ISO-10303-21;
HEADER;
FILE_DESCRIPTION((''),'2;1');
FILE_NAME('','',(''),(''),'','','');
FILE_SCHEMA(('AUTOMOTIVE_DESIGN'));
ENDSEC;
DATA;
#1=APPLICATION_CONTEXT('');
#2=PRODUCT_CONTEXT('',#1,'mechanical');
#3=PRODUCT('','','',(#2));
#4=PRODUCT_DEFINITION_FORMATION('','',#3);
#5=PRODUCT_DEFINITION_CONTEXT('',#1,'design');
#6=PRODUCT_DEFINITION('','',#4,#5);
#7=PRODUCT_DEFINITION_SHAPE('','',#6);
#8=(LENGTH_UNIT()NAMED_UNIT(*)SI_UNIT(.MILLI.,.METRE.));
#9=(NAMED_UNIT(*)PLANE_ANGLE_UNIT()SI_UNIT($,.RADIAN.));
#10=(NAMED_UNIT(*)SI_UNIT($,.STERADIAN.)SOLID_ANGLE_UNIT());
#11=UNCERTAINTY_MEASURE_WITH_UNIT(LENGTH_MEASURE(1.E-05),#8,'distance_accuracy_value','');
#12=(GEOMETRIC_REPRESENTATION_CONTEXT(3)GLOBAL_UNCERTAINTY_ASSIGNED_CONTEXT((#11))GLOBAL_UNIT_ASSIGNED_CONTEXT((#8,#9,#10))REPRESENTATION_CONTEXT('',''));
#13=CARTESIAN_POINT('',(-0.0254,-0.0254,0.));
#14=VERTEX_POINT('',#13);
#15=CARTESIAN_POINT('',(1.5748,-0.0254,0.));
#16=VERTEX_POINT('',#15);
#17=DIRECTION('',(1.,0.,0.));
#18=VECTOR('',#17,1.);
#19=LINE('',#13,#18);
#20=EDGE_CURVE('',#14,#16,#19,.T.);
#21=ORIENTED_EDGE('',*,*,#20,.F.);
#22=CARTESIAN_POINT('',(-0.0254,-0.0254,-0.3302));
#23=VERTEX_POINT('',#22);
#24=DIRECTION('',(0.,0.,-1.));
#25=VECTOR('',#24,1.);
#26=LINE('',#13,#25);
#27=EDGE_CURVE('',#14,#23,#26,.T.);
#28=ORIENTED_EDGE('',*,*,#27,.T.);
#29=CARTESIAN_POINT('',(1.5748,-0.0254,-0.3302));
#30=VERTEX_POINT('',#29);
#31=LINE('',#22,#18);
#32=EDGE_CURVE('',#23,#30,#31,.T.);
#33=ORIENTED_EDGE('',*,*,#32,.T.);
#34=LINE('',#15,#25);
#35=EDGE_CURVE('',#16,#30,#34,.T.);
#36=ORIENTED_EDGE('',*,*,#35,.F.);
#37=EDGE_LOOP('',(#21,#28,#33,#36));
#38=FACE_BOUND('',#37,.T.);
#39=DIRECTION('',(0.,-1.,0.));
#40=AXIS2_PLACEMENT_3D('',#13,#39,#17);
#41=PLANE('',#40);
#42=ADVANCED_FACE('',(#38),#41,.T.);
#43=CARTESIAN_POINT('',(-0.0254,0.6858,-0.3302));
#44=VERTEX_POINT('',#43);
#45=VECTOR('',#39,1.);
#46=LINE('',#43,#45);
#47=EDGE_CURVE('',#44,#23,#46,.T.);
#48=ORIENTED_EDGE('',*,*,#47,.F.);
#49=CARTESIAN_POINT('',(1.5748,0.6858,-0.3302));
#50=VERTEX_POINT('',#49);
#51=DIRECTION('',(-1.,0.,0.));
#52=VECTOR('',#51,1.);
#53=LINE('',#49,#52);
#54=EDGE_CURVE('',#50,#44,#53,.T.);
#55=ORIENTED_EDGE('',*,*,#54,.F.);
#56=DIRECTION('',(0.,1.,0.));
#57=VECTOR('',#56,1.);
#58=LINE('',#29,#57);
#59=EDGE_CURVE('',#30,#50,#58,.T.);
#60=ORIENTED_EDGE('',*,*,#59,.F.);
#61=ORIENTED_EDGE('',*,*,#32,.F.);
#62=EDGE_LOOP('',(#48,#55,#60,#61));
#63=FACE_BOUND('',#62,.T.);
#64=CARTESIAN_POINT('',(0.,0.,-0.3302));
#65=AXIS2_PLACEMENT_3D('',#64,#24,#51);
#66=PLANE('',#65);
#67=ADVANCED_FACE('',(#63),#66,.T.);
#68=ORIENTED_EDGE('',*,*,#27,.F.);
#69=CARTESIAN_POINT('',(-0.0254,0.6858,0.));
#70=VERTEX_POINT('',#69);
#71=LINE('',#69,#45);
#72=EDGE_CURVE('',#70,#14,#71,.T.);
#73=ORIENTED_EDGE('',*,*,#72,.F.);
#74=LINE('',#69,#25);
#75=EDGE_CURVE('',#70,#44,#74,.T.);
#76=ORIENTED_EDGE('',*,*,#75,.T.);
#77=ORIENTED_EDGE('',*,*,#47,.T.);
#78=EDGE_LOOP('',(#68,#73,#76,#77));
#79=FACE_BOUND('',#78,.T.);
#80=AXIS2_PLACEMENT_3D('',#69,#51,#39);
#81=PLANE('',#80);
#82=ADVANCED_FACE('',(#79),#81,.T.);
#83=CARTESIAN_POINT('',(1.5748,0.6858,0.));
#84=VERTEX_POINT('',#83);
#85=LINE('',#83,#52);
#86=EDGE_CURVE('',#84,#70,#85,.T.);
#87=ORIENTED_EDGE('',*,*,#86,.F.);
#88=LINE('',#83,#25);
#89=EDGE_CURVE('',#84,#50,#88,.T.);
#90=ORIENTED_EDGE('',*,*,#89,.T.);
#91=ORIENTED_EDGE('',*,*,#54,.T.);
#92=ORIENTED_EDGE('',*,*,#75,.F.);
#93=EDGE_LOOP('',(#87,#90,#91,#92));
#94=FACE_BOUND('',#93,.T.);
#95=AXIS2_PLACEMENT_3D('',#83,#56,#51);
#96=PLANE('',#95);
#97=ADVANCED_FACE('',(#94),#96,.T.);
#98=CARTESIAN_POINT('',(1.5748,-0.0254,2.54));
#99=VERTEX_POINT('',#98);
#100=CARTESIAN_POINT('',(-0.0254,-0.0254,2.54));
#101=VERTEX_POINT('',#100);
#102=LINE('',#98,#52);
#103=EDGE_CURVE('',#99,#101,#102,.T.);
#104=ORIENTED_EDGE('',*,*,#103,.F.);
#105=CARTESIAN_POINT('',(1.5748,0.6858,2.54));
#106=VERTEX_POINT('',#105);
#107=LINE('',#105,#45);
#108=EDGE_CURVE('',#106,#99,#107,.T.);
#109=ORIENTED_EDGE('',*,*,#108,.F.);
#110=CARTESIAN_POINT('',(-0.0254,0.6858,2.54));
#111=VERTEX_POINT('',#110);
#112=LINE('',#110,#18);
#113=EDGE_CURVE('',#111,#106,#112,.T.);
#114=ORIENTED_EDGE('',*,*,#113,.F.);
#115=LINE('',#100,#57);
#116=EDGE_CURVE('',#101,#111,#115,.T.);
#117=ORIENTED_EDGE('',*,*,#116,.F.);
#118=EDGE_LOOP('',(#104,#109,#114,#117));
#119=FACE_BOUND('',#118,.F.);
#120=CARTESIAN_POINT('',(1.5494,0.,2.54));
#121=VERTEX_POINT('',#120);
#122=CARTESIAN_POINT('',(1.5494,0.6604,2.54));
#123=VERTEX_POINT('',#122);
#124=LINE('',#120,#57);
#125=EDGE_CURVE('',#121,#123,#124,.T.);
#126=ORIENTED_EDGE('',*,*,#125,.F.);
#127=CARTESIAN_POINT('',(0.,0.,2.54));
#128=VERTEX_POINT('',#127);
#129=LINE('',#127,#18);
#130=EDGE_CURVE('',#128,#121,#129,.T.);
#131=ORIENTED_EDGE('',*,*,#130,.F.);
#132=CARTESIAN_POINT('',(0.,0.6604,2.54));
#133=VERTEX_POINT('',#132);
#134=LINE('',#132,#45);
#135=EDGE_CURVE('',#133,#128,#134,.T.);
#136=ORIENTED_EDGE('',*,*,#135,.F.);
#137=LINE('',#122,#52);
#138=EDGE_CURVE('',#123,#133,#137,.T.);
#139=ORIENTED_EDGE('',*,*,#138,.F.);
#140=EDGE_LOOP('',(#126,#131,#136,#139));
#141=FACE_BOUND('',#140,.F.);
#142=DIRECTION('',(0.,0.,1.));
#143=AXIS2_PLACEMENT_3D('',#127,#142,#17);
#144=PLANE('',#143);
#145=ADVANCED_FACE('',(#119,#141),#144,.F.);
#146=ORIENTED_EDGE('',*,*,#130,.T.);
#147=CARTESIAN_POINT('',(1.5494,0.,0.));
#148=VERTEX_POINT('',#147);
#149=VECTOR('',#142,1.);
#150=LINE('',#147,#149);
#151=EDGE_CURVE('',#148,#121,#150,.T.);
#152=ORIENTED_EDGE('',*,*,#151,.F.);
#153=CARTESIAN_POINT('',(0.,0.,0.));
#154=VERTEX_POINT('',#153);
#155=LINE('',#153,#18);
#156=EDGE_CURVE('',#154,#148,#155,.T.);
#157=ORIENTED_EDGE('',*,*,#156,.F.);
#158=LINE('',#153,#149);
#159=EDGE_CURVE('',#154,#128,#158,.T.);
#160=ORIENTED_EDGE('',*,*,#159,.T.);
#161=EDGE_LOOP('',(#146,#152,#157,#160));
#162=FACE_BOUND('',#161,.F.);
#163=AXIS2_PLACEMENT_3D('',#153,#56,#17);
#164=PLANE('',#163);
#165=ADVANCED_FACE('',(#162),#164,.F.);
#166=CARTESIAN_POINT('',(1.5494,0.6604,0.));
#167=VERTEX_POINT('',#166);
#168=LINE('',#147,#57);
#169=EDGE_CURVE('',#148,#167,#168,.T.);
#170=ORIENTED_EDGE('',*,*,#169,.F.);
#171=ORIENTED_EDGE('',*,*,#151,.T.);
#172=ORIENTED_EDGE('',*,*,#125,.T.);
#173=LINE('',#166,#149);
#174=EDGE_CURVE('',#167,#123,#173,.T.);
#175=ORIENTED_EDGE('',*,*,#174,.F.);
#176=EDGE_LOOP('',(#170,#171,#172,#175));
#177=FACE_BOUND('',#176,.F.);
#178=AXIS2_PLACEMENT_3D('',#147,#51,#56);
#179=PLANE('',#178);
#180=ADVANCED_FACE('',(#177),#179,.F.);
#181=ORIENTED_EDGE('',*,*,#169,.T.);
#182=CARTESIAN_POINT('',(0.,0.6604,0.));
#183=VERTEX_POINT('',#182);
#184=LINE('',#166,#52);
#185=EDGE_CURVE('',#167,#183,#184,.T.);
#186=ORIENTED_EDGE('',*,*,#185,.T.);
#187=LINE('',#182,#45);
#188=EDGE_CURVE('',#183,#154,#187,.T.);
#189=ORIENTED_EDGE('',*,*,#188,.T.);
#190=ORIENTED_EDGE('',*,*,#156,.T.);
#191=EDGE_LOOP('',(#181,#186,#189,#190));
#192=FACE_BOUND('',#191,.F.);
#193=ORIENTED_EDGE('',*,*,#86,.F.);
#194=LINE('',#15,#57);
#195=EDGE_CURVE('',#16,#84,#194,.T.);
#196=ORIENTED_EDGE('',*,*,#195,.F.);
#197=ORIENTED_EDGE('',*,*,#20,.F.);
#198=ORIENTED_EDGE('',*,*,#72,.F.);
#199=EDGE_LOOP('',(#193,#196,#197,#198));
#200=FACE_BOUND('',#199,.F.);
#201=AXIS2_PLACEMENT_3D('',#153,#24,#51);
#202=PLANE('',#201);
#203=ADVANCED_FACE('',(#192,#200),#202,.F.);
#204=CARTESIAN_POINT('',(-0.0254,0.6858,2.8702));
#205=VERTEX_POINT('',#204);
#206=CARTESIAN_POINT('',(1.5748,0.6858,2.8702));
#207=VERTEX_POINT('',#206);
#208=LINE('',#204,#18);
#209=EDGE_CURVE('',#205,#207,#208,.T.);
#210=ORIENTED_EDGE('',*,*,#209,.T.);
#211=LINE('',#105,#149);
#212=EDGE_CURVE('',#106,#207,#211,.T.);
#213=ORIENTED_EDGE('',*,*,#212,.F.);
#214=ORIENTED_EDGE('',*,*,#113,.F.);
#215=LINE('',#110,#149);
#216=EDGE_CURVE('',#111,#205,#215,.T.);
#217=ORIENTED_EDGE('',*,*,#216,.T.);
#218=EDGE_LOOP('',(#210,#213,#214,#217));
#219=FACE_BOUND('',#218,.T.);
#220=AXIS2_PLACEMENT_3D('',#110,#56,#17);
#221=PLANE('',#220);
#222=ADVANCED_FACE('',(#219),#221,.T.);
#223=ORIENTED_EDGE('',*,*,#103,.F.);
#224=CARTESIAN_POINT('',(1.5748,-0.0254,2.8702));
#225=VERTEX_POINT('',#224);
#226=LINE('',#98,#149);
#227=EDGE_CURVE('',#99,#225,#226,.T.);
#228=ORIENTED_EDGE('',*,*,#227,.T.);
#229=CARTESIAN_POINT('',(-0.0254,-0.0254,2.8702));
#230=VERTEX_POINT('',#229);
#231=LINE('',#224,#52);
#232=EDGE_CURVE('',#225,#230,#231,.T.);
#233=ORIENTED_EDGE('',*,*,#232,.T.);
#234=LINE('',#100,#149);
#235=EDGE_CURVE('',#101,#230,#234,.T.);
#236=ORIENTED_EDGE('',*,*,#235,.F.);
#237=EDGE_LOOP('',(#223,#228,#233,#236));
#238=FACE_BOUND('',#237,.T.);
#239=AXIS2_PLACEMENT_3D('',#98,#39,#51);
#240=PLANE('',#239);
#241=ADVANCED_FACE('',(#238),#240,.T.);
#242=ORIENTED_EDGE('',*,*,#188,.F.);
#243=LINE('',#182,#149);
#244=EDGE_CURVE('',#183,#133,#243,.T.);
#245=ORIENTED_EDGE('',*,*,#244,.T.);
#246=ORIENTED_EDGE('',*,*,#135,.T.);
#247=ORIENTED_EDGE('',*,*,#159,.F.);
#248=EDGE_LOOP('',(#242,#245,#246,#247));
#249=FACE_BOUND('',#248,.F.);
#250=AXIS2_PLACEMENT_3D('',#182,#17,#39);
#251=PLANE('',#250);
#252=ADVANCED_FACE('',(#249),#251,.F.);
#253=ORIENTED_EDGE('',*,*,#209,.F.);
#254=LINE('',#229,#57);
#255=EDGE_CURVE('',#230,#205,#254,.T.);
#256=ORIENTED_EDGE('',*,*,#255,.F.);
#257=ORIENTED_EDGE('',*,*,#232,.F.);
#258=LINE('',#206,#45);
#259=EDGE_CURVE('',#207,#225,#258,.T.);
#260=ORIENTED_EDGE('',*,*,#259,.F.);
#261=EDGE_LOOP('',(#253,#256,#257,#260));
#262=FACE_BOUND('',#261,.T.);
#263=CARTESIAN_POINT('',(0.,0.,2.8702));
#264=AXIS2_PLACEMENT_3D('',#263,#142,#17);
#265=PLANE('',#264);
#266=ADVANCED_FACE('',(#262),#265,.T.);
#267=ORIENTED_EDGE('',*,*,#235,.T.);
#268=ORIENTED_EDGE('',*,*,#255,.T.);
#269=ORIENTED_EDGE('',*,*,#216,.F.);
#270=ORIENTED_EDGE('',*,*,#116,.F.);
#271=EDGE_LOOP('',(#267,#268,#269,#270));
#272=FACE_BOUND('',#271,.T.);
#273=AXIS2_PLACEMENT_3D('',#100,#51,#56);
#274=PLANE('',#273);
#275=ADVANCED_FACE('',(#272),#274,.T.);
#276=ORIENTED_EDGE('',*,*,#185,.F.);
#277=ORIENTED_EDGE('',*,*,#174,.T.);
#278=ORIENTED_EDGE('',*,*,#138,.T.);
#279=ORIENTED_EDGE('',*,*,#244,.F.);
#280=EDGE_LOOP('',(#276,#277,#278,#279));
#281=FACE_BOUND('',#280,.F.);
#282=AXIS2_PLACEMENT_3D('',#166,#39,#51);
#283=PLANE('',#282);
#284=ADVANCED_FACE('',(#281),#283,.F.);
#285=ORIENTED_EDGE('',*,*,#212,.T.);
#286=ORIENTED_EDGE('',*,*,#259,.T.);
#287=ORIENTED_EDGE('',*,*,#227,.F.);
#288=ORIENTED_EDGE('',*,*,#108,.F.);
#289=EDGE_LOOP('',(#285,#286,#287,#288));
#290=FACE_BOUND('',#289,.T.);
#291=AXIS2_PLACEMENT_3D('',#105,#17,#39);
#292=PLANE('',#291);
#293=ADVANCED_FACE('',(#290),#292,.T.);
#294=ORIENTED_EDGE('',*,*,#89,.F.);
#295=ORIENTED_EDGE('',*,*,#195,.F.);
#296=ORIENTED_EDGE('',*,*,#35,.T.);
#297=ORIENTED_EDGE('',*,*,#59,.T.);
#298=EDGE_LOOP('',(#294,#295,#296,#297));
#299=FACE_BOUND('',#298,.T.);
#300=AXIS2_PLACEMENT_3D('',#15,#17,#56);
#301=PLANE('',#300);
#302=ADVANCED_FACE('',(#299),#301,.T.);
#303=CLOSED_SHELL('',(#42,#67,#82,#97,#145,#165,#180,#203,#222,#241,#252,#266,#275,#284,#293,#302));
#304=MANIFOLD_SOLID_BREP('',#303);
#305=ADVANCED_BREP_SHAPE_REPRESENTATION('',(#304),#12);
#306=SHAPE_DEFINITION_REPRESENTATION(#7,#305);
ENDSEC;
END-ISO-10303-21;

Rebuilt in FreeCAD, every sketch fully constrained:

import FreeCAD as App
import Part
import Sketcher

V = App.Vector
Q = App.Units.Quantity


def add_polygon(sketch, points):
    """Adds a closed chain of lines whose ends are joined by coincident constraints."""
    first, n = sketch.GeometryCount, len(points)
    for a, b in zip(points, points[1:] + points[:1]):
        sketch.addGeometry(Part.LineSegment(App.Vector(*a, 0), App.Vector(*b, 0)), False)
    for i in range(n):
        sketch.addConstraint(Sketcher.Constraint("Coincident", first + i, 2, first + (i + 1) % n, 1))

doc = App.newDocument("Part")
body = doc.addObject("PartDesign::Body", "Body")

sketch1 = doc.addObject("Sketcher::SketchObject", "Sketch")
body.addObject(sketch1)
sketch1.AttachmentSupport = (doc.XY_Plane, [""])
sketch1.MapMode = "FlatFace"
add_polygon(sketch1, [(0, 0.6604), (0, 0), (1.5494, 0), (1.5494, 0.6604)])
sketch1.addConstraint([
    Sketcher.Constraint("Vertical", 0),
    Sketcher.Constraint("Horizontal", 1),
    Sketcher.Constraint("Vertical", 2),
    Sketcher.Constraint("Horizontal", 3),
    Sketcher.Constraint("Coincident", 0, 2, -1, 1),
    Sketcher.Constraint("DistanceX", 1, 1, 1, 2, Q("0.061 in")),
    Sketcher.Constraint("DistanceY", 0, 2, 0, 1, Q("0.026 in")),
])
pad1 = doc.addObject("PartDesign::Pad", "Pad")
body.addObject(pad1)
pad1.Profile = sketch1
pad1.Length = Q("0.1 in")

sketch2 = doc.addObject("Sketcher::SketchObject", "Sketch001")
body.addObject(sketch2)
sketch2.AttachmentSupport = (doc.XY_Plane, [""])
sketch2.MapMode = "FlatFace"
sketch2.AttachmentOffset = App.Placement(V(0, 0, 0.1 * 25.4), App.Rotation())
add_polygon(sketch2, [(1.5748, 0.6858), (-0.0254, 0.6858), (-0.0254, -0.0254), (1.5748, -0.0254)])
sketch2.addConstraint([
    Sketcher.Constraint("Horizontal", 0),
    Sketcher.Constraint("Vertical", 1),
    Sketcher.Constraint("Horizontal", 2),
    Sketcher.Constraint("Vertical", 3),
    Sketcher.Constraint("DistanceX", 0, 2, -1, 1, Q("0.001 in")),
    Sketcher.Constraint("DistanceY", 1, 2, -1, 1, Q("0.001 in")),
    Sketcher.Constraint("DistanceX", 0, 2, 0, 1, Q("0.063 in")),
    Sketcher.Constraint("DistanceY", 1, 2, 1, 1, Q("0.028 in")),
])
pad2 = doc.addObject("PartDesign::Pad", "Pad001")
body.addObject(pad2)
pad2.Profile = sketch2
pad2.Length = Q("0.013 in")

sketch3 = doc.addObject("Sketcher::SketchObject", "Sketch002")
body.addObject(sketch3)
sketch3.AttachmentSupport = (doc.XY_Plane, [""])
sketch3.MapMode = "FlatFace"
add_polygon(sketch3, [(1.5748, -0.0254), (-0.0254, -0.0254), (-0.0254, 0.6858), (1.5748, 0.6858)])
sketch3.addConstraint([
    Sketcher.Constraint("Horizontal", 0),
    Sketcher.Constraint("Vertical", 1),
    Sketcher.Constraint("Horizontal", 2),
    Sketcher.Constraint("Vertical", 3),
    Sketcher.Constraint("DistanceX", 0, 2, 0, 1, Q("0.063 in")),
    Sketcher.Constraint("DistanceY", 1, 1, 1, 2, Q("0.028 in")),
    Sketcher.Constraint("DistanceX", 0, 2, -1, 1, Q("0.001 in")),
    Sketcher.Constraint("DistanceY", 0, 2, -1, 1, Q("0.001 in")),
])
pad3 = doc.addObject("PartDesign::Pad", "Pad002")
body.addObject(pad3)
pad3.Profile = sketch3
pad3.Length = Q("0.013 in")
pad3.Reversed = True

doc.recompute()
